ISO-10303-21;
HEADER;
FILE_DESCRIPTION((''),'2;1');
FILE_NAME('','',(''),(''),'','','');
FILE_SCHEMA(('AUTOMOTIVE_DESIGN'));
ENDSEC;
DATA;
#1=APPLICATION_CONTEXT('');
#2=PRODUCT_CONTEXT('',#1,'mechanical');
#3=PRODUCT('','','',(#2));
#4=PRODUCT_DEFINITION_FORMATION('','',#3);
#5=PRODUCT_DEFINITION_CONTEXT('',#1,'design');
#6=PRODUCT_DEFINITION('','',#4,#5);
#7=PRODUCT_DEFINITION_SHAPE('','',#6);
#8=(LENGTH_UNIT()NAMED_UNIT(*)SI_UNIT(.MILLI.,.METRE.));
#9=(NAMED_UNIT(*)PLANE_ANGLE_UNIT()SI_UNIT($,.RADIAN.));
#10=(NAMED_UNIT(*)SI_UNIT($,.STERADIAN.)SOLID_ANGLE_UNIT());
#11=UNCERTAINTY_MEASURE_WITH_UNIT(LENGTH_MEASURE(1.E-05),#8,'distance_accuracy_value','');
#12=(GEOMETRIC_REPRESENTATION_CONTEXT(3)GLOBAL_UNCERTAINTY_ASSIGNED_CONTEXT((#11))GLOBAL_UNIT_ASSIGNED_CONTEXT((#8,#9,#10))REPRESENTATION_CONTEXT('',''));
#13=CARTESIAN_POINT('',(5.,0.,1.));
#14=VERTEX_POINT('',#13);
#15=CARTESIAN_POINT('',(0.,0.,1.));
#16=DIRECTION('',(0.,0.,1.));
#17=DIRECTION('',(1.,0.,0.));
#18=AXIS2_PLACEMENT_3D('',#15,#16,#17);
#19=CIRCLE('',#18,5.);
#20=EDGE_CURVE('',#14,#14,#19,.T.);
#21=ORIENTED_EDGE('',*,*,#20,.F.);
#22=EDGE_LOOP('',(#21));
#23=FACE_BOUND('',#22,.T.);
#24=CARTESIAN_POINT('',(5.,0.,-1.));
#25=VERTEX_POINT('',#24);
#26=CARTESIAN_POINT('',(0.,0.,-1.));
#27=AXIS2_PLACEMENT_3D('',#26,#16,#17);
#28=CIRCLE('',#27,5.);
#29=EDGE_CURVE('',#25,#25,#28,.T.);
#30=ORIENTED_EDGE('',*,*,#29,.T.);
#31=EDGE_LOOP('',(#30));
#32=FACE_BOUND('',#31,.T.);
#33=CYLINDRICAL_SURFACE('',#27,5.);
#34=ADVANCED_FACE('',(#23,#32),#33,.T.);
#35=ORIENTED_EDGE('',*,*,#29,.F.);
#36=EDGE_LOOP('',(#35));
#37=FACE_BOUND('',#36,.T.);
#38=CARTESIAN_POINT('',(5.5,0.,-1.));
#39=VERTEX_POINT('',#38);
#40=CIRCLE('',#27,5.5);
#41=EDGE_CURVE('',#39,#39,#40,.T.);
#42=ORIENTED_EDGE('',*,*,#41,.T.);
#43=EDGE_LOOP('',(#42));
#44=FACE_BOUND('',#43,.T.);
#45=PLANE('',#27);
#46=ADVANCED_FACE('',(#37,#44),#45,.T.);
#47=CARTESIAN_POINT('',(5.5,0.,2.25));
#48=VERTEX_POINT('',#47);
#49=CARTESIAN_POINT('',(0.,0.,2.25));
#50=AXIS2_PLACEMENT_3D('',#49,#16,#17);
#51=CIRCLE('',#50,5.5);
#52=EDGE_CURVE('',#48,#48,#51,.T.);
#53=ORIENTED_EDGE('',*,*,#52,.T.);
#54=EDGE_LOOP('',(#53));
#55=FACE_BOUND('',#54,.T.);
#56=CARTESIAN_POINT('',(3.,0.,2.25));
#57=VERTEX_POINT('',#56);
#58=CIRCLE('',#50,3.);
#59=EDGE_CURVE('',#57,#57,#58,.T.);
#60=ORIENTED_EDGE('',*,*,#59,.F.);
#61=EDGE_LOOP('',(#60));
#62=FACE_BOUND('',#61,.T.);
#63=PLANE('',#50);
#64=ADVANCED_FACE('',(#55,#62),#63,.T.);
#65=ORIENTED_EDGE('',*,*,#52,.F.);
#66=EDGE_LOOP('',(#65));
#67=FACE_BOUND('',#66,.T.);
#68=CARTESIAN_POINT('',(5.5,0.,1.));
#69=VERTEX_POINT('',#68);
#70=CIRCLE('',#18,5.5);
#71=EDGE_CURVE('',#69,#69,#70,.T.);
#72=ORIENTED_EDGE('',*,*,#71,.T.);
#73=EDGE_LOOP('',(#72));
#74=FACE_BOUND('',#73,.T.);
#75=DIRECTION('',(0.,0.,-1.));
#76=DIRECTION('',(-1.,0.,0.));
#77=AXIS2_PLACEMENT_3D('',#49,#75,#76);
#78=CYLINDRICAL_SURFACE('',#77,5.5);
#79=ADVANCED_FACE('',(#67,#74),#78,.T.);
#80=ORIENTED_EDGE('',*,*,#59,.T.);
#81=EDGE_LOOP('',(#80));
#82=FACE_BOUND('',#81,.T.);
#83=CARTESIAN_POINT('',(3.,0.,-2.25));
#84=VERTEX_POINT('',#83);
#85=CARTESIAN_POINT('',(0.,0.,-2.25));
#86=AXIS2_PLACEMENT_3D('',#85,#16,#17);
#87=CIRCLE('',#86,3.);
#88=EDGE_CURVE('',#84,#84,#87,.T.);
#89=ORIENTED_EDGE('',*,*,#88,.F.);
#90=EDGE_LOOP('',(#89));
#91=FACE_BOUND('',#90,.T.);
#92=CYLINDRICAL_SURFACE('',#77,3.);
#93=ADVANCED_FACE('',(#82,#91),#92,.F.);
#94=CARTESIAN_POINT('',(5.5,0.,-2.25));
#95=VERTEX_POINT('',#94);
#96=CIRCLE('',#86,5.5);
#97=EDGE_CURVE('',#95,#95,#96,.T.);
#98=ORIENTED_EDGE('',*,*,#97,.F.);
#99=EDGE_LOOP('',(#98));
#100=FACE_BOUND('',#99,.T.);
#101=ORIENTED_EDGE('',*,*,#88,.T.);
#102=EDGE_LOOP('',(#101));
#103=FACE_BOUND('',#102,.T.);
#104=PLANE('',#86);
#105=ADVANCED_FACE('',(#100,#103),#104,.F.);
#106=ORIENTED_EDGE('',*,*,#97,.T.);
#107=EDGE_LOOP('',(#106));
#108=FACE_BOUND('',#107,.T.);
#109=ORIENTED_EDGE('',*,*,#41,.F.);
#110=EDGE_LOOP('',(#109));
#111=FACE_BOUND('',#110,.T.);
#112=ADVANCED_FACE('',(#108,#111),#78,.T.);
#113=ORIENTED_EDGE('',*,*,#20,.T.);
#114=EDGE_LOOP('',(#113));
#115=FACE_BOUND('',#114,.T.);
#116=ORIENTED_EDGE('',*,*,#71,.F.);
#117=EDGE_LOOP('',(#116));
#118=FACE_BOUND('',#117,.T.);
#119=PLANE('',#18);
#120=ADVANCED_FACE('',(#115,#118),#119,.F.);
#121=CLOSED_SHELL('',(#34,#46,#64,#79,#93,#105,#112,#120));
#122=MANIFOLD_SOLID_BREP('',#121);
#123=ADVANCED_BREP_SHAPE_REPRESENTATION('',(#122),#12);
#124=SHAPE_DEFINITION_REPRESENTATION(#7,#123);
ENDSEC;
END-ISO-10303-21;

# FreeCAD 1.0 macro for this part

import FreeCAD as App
import Part
import Sketcher
Q = App.Units.Quantity

doc = App.newDocument("Part")
body = doc.addObject("PartDesign::Body", "Body")

sketch1 = body.newObject("Sketcher::SketchObject", "Sketch")
sketch1.AttachmentSupport = (doc.getObject("XY_Plane"), [""])
sketch1.MapMode = "FlatFace"
sketch1.addGeometry(Part.Circle(App.Vector(0, 0, 0), App.Vector(0, 0, 1), 5.5), False)
sketch1.addGeometry(Part.Circle(App.Vector(0, 0, 0), App.Vector(0, 0, 1), 3), False)
sketch1.addConstraint(Sketcher.Constraint("Coincident", 0, 3, -1, 1))
sketch1.addConstraint(Sketcher.Constraint("Coincident", 1, 3, -1, 1))
sketch1.addConstraint(Sketcher.Constraint("Diameter", 0, Q("11 mm")))
sketch1.addConstraint(Sketcher.Constraint("Diameter", 1, Q("6 mm")))
pad1 = body.newObject("PartDesign::Pad", "Pad")
pad1.Profile = sketch1
pad1.Length = 4.5
pad1.Midplane = True

sketch2 = body.newObject("Sketcher::SketchObject", "Sketch001")
sketch2.AttachmentSupport = (doc.getObject("XY_Plane"), [""])
sketch2.MapMode = "FlatFace"
sketch2.addGeometry(Part.LineSegment(App.Vector(-8, 8, 0), App.Vector(-8, -8, 0)), False)
sketch2.addGeometry(Part.LineSegment(App.Vector(-8, -8, 0), App.Vector(8, -8, 0)), False)
sketch2.addGeometry(Part.LineSegment(App.Vector(8, -8, 0), App.Vector(8, 8, 0)), False)
sketch2.addGeometry(Part.LineSegment(App.Vector(8, 8, 0), App.Vector(-8, 8, 0)), False)
sketch2.addGeometry(Part.Circle(App.Vector(0, 0, 0), App.Vector(0, 0, 1), 5), False)
sketch2.addConstraint(Sketcher.Constraint("Coincident", 0, 2, 1, 1))
sketch2.addConstraint(Sketcher.Constraint("Coincident", 1, 2, 2, 1))
sketch2.addConstraint(Sketcher.Constraint("Coincident", 2, 2, 3, 1))
sketch2.addConstraint(Sketcher.Constraint("Coincident", 3, 2, 0, 1))
sketch2.addConstraint(Sketcher.Constraint("Vertical", 0))
sketch2.addConstraint(Sketcher.Constraint("Horizontal", 1))
sketch2.addConstraint(Sketcher.Constraint("Vertical", 2))
sketch2.addConstraint(Sketcher.Constraint("Horizontal", 3))
sketch2.addConstraint(Sketcher.Constraint("Coincident", 4, 3, -1, 1))
sketch2.addConstraint(Sketcher.Constraint("Symmetric", 0, 2, 2, 2, -1, 1))
sketch2.addConstraint(Sketcher.Constraint("Equal", 3, 0))
sketch2.addConstraint(Sketcher.Constraint("Diameter", 4, Q("10 mm")))
sketch2.addConstraint(Sketcher.Constraint("DistanceX", 1, 1, 1, 2, Q("16.238 mm")))
pocket1 = body.newObject("PartDesign::Pocket", "Pocket")
pocket1.Profile = sketch2
pocket1.Length = 2
pocket1.Midplane = True

doc.recompute()
